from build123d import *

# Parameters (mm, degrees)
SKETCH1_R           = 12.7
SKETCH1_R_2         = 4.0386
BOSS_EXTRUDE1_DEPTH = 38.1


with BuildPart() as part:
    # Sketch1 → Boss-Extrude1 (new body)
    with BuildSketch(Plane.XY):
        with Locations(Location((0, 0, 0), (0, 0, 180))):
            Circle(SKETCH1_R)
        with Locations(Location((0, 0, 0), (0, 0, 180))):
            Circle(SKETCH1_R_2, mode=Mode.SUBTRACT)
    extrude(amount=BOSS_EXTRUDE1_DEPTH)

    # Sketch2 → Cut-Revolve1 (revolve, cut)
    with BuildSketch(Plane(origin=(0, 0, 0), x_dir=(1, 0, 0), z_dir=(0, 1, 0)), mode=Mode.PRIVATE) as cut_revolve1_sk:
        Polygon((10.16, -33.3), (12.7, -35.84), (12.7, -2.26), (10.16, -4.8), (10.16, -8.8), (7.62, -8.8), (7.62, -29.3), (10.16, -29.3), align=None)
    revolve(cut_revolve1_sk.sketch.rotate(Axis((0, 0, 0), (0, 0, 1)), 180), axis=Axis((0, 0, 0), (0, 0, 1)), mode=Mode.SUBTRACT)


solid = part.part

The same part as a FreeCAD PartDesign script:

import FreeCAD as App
import Part
import Sketcher

V = App.Vector
Q = App.Units.Quantity


def add_polygon(sketch, points):
    """Adds a closed chain of lines whose ends are joined by coincident constraints."""
    first, n = sketch.GeometryCount, len(points)
    for a, b in zip(points, points[1:] + points[:1]):
        sketch.addGeometry(Part.LineSegment(App.Vector(*a, 0), App.Vector(*b, 0)), False)
    for i in range(n):
        sketch.addConstraint(Sketcher.Constraint("Coincident", first + i, 2, first + (i + 1) % n, 1))

doc = App.newDocument("Part")
body = doc.addObject("PartDesign::Body", "Body")

sketch1 = doc.addObject("Sketcher::SketchObject", "Sketch")
body.addObject(sketch1)
sketch1.AttachmentSupport = (doc.XY_Plane, [""])
sketch1.MapMode = "FlatFace"
sketch1.addGeometry([
    Part.Circle(V(0, 0, 0), V(0, 0, 1), 12.7),
    Part.Circle(V(0, 0, 0), V(0, 0, 1), 4),
], False)
sketch1.addConstraint([
    Sketcher.Constraint("Coincident", 0, 3, -1, 1),
    Sketcher.Constraint("Coincident", 1, 3, -1, 1),
    Sketcher.Constraint("Diameter", 0, Q("1 in")),
    Sketcher.Constraint("Diameter", 1, Q("0.318 in")),
])
pad1 = doc.addObject("PartDesign::Pad", "Pad")
body.addObject(pad1)
pad1.Profile = sketch1
pad1.Length = Q("1.5 in")

sketch2 = doc.addObject("Sketcher::SketchObject", "Sketch001")
body.addObject(sketch2)
sketch2.AttachmentSupport = (doc.XZ_Plane, [""])
sketch2.MapMode = "FlatFace"
add_polygon(sketch2, [(10.2, 33.3), (12.7, 35.8), (12.7, 2.3), (10.2, 4.8), (10.2, 8.8), (7.6, 8.8), (7.6, 29.3), (10.2, 29.3)])
sketch2.addConstraint([
    Sketcher.Constraint("Vertical", 1),
    Sketcher.Constraint("Vertical", 3),
    Sketcher.Constraint("Horizontal", 4),
    Sketcher.Constraint("Vertical", 5),
    Sketcher.Constraint("Horizontal", 6),
    Sketcher.Constraint("Vertical", 7),
    Sketcher.Constraint("Perpendicular", 0, 2),
    Sketcher.Constraint("Vertical", 3, 2, 6, 2),
    Sketcher.Constraint("Equal", 3, 7),
    Sketcher.Constraint("Equal", 0, 2),
    Sketcher.Constraint("DistanceX", 4, 2, 4, 1, Q("0.1 in")),
    Sketcher.Constraint("DistanceX", -1, 1, 0, 2, Q("0.5 in")),
    Sketcher.Constraint("DistanceX", -1, 1, 2, 2, Q("0.4 in")),
    Sketcher.Constraint("DistanceY", 1, 2, 1, 1, 33.58),
    Sketcher.Constraint("DistanceY", 3, 1, 3, 2, 4.0),
    Sketcher.Constraint("DistanceY", -1, 1, 0, 2, 35.84),
])
groove = doc.addObject("PartDesign::Groove", "Groove")
body.addObject(groove)
groove.Profile = sketch2
groove.ReferenceAxis = (sketch2, ["V_Axis"])
groove.Angle = 360

doc.recompute()
